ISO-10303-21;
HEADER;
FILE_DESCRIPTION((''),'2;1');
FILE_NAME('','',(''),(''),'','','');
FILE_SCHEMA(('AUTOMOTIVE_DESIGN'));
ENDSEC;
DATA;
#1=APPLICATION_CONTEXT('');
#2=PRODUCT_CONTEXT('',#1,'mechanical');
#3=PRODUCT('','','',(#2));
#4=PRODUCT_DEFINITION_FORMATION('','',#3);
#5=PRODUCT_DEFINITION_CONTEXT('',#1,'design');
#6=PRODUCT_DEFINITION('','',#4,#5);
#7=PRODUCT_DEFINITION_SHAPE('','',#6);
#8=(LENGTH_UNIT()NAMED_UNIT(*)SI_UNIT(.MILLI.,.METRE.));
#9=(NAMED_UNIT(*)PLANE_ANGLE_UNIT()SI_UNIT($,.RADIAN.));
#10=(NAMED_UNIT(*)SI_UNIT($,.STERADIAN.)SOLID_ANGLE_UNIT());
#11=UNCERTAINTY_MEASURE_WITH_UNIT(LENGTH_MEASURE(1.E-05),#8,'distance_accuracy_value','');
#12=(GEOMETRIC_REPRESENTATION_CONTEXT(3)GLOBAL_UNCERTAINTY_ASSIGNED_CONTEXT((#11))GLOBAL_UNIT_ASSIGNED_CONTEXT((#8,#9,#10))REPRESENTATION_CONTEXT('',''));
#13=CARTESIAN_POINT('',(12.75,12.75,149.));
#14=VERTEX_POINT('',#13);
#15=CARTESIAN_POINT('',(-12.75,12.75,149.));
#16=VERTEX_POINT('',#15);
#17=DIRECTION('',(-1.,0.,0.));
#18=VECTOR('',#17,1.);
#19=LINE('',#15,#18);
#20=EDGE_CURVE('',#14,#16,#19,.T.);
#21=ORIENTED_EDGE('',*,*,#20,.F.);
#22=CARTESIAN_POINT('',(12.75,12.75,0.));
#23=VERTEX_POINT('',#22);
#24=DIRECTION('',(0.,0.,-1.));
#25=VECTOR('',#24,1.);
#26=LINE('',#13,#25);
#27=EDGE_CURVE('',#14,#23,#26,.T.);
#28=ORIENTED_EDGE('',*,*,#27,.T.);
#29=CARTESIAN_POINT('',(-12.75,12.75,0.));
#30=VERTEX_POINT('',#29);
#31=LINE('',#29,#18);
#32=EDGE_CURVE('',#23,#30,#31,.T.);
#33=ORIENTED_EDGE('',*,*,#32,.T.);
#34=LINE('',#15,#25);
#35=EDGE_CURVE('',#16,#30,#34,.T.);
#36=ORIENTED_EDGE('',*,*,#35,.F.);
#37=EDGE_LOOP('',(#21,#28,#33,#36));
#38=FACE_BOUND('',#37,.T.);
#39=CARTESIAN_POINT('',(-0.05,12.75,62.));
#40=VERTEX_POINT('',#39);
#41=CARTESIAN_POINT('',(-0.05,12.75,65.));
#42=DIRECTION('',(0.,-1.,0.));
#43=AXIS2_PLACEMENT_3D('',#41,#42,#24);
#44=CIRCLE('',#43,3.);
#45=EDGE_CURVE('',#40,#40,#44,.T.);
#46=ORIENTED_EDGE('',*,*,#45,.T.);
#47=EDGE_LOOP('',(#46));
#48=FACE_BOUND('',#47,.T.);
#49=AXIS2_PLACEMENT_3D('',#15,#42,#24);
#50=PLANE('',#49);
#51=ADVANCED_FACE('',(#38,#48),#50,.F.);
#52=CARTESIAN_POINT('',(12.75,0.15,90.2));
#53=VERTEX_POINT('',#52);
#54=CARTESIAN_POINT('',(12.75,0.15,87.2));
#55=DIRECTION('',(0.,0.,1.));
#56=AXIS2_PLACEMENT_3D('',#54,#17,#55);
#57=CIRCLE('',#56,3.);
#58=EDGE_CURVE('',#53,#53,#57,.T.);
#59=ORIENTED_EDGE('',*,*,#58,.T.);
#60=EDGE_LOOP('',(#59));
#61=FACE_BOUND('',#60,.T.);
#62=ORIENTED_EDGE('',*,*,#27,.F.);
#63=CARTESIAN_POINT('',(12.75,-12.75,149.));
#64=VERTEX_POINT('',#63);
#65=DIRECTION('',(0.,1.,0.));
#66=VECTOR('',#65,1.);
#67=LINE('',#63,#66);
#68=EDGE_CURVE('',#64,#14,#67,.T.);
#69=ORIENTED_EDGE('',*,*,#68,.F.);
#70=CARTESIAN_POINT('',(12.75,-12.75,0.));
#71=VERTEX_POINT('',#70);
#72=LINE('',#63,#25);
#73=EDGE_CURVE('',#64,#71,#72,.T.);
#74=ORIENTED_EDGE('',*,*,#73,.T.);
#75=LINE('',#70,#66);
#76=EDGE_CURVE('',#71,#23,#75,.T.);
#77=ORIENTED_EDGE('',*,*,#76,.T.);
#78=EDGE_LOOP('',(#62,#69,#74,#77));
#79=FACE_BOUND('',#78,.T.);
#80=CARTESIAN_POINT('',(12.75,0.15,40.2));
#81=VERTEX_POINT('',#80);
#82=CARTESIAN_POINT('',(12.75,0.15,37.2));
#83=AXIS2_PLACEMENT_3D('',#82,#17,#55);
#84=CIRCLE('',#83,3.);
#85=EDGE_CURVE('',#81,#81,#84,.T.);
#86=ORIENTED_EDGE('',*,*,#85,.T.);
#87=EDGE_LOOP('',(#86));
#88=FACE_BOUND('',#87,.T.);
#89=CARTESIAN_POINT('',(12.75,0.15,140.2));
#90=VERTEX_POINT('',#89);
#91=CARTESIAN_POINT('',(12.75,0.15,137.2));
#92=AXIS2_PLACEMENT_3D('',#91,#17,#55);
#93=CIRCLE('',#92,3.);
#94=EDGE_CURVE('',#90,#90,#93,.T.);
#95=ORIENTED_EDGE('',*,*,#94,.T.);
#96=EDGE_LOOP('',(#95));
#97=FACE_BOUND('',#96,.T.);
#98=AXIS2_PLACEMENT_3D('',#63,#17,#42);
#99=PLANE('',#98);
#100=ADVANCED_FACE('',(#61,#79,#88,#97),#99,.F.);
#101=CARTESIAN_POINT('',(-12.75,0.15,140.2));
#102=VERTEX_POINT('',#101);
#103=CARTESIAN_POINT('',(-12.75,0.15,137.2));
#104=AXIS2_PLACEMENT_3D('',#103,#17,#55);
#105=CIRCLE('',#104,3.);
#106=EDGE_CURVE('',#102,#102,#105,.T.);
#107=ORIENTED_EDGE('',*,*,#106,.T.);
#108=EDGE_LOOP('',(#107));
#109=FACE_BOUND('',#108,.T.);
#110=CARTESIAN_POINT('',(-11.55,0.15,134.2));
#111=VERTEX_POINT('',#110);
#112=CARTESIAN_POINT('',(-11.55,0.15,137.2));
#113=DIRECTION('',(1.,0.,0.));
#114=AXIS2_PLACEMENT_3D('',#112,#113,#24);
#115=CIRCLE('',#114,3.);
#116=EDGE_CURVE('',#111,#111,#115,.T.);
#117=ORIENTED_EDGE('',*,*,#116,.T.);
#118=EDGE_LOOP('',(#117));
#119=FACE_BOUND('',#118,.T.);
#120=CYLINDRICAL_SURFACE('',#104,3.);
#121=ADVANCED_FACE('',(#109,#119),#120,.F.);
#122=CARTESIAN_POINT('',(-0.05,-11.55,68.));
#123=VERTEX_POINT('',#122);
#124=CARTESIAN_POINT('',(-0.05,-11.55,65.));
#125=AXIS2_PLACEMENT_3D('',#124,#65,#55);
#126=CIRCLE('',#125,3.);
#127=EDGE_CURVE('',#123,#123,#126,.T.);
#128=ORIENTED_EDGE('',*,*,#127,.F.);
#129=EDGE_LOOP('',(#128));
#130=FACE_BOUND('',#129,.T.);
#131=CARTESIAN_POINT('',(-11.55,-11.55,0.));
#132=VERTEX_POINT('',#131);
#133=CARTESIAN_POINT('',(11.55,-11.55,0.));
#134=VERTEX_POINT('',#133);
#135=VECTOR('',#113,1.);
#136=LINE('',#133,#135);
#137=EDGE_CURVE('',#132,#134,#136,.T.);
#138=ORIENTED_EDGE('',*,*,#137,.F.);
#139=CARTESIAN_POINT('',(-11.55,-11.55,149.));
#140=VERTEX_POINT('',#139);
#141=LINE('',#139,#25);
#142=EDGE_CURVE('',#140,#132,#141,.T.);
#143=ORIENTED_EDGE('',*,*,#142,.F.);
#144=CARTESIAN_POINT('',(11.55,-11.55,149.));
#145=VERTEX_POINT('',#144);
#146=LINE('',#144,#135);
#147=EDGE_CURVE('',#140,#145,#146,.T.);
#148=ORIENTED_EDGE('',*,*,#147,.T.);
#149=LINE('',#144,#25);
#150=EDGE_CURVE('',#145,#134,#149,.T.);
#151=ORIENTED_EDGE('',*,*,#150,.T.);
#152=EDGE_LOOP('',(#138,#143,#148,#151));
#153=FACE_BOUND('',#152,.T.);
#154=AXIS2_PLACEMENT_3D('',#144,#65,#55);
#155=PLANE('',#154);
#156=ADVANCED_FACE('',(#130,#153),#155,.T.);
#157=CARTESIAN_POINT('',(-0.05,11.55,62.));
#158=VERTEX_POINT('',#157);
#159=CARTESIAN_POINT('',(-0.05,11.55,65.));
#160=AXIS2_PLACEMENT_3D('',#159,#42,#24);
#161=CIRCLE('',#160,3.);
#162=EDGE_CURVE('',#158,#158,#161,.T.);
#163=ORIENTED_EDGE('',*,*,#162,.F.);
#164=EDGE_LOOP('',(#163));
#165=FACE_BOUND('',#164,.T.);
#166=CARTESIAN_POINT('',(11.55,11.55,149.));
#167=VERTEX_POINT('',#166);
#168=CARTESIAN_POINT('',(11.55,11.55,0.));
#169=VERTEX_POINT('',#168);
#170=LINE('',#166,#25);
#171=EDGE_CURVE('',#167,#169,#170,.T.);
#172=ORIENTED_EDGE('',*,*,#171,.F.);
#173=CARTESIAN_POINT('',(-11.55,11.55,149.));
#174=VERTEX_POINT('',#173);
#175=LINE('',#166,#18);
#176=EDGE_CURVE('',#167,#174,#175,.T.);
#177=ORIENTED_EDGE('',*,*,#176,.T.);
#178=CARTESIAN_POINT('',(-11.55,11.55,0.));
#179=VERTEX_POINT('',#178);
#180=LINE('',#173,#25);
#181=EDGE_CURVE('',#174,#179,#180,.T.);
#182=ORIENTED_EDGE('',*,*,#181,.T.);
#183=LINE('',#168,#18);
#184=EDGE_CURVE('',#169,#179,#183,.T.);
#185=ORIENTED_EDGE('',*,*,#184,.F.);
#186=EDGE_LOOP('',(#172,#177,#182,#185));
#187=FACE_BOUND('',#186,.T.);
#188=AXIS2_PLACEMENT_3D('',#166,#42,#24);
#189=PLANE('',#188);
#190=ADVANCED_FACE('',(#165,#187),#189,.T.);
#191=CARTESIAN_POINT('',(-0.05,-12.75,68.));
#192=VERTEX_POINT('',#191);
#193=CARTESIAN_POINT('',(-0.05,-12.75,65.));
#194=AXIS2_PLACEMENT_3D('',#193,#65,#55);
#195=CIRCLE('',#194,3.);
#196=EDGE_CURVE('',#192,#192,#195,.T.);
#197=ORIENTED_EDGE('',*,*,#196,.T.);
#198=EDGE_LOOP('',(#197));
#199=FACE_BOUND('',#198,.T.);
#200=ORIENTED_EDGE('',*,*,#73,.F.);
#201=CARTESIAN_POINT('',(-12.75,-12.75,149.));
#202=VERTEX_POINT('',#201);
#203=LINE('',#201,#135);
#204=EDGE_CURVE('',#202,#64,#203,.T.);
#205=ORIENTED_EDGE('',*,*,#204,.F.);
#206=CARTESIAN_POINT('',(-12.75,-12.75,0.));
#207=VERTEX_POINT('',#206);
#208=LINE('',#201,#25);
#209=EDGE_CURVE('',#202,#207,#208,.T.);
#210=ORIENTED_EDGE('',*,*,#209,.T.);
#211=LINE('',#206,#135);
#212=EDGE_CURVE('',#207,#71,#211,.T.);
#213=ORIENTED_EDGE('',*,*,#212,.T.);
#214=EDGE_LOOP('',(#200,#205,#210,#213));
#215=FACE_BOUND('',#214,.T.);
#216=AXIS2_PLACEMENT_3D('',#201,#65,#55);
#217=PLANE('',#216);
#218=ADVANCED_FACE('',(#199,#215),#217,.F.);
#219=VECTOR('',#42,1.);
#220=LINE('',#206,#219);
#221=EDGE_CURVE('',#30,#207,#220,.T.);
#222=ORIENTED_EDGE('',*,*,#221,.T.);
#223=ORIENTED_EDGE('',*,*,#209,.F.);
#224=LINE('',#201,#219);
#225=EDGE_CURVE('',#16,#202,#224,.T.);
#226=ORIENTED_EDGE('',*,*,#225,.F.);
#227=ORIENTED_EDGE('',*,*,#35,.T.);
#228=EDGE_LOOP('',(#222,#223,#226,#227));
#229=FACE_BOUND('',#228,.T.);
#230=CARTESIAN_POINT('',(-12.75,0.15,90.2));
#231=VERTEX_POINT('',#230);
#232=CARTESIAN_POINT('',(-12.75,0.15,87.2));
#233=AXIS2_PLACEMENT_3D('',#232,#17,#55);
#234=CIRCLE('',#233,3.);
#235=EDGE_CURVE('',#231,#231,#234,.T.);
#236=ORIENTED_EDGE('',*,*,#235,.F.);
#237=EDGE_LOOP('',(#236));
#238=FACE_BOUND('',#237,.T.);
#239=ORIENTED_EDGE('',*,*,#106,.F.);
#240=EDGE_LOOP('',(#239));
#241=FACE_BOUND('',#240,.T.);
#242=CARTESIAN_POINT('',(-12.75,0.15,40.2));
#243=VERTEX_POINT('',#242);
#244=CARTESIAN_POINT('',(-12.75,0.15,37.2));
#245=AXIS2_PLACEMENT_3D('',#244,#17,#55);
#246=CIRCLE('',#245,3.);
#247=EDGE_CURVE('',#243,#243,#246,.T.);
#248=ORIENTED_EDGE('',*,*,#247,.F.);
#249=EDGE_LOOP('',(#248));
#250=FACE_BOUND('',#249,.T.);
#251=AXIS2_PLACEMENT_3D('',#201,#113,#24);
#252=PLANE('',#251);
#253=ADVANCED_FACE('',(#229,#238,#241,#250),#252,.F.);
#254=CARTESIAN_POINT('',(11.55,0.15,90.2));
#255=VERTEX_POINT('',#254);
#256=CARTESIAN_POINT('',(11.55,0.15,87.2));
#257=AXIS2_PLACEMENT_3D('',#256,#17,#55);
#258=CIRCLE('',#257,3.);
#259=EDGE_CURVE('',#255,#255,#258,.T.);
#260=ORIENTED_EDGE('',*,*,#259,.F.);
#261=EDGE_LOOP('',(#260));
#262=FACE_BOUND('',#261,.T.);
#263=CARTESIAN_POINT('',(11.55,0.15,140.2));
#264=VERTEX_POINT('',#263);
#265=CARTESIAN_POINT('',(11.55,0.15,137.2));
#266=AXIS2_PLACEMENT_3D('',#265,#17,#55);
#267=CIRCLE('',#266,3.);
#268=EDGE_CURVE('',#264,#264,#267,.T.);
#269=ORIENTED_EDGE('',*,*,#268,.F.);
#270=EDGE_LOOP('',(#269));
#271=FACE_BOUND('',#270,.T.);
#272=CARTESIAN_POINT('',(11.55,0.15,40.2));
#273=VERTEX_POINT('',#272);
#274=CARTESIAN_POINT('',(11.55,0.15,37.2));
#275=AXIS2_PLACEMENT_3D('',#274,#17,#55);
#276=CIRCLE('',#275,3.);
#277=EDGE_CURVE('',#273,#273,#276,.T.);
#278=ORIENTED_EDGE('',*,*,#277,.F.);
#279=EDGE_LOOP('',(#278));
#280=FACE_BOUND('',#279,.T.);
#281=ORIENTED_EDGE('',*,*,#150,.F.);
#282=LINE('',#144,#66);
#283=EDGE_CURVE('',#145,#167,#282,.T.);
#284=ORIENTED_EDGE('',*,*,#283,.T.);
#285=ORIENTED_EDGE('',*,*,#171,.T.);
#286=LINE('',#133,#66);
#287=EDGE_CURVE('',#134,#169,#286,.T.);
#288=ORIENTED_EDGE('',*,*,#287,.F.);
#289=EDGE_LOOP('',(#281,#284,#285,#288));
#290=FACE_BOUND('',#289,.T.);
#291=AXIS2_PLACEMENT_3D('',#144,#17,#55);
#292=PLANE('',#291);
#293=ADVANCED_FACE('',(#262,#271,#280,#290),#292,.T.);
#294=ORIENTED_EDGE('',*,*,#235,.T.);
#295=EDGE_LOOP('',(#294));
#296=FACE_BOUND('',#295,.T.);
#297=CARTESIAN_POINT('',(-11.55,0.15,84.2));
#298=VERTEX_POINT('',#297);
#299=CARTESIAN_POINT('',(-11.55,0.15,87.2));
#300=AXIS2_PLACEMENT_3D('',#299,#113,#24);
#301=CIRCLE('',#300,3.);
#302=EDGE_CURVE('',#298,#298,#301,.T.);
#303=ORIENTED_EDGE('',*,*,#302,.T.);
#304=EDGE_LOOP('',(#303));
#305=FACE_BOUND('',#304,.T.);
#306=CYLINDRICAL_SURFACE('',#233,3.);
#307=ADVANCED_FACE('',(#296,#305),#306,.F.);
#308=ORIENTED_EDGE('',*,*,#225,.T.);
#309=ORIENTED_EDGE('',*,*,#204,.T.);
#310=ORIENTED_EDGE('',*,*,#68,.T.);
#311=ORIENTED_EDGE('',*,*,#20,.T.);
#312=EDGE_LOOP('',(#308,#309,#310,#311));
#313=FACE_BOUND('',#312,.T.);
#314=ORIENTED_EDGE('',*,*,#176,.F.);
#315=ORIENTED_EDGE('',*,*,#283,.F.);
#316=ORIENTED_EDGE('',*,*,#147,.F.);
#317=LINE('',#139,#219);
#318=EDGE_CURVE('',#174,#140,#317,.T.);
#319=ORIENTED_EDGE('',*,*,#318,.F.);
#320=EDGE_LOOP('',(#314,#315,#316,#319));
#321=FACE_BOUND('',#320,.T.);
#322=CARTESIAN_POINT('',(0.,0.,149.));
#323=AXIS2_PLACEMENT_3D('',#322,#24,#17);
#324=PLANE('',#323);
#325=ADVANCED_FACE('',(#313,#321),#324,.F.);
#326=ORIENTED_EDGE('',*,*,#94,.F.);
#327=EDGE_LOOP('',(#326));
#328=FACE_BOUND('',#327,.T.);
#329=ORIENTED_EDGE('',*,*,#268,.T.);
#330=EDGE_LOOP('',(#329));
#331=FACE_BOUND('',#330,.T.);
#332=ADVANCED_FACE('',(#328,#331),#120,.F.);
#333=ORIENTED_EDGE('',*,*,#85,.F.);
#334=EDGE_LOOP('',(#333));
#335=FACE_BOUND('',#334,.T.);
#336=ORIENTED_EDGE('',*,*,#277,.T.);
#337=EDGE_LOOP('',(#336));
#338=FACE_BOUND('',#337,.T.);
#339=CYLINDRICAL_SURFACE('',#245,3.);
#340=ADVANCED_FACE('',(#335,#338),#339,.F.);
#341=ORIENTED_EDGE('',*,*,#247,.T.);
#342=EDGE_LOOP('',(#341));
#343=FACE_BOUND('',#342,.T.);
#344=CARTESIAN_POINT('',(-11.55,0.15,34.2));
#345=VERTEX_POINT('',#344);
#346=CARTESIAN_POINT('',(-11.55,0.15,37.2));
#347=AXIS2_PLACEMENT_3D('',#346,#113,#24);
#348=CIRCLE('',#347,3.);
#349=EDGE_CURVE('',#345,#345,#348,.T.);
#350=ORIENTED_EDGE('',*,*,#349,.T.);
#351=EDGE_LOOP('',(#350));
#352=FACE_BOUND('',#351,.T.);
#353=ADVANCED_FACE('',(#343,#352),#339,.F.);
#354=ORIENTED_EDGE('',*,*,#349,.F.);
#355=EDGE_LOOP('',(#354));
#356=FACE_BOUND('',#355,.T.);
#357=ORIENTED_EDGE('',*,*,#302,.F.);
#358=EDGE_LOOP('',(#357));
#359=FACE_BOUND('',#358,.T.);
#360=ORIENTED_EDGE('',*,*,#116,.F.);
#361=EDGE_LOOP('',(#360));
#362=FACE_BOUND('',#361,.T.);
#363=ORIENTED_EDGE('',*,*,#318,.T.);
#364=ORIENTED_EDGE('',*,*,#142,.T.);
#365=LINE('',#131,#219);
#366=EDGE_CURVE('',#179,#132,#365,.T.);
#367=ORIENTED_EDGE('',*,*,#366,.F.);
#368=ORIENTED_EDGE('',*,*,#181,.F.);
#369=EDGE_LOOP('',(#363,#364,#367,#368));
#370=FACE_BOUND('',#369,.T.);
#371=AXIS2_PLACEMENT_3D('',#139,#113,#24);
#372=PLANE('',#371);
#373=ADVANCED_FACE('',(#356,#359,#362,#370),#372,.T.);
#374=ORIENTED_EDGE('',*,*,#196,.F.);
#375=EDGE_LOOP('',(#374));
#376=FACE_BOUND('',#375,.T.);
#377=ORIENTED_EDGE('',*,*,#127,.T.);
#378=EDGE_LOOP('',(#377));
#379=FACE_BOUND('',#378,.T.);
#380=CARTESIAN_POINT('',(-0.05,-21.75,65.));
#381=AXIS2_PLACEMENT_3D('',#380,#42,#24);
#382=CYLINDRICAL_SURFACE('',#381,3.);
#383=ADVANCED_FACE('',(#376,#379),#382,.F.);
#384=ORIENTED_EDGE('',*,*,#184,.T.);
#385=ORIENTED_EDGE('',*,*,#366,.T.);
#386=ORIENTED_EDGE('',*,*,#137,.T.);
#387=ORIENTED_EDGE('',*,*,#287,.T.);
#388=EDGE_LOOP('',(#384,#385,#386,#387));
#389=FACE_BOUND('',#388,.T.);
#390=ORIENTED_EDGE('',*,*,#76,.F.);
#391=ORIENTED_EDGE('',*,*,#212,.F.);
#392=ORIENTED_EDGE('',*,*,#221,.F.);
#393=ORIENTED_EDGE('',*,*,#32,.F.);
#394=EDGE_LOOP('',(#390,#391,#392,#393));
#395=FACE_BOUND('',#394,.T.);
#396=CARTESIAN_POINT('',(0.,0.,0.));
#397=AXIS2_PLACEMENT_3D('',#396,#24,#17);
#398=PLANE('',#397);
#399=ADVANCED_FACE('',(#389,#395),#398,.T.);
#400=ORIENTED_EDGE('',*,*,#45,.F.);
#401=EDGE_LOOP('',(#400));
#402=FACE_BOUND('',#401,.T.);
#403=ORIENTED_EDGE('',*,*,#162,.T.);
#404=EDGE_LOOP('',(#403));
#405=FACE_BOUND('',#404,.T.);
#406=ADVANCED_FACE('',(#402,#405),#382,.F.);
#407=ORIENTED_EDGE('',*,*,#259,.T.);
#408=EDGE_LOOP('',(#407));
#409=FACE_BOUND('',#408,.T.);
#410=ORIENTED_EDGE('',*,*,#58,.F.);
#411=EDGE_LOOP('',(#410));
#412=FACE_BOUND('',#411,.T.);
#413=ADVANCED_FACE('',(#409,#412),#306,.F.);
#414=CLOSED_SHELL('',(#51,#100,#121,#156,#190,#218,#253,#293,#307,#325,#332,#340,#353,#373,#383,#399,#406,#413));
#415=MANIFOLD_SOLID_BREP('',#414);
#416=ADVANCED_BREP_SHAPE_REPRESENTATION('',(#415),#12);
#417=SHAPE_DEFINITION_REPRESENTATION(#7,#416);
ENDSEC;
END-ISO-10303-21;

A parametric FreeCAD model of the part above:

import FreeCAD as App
import Part
import Sketcher

V = App.Vector
Q = App.Units.Quantity

doc = App.newDocument("Part")
params = doc.addObject("Spreadsheet::Sheet", "Params")
for row, (alias, value) in enumerate([
    ("sketch1_width", "25.5 mm"),
    ("sketch1_width2", "23.1 mm"),
    ("pad1_length", "149 mm"),
    ("sketch2_diameter", "6 mm"),
    ("hole_diameter", "6 mm"),
    ("sketch3_diameter", "6 mm"),
    ("hole2_diameter", "6 mm"),
], start=1):
    params.set(f"A{row}", alias)
    params.set(f"B{row}", "=" + value)
    params.setAlias(f"B{row}", alias)

body = doc.addObject("PartDesign::Body", "Body")

# Sketch on XY plane
sketch1 = body.newObject("Sketcher::SketchObject", "Sketch")
sketch1.AttachmentSupport = (doc.getObject("XY_Plane"), [""])
sketch1.MapMode = "FlatFace"
sketch1.addGeometry([
    Part.LineSegment(V(-12.75, 12.75, 0), V(-12.75, -12.75, 0)),  # 0
    Part.LineSegment(V(-12.75, -12.75, 0), V(12.75, -12.75, 0)),  # 1
    Part.LineSegment(V(12.75, -12.75, 0), V(12.75, 12.75, 0)),  # 2
    Part.LineSegment(V(12.75, 12.75, 0), V(-12.75, 12.75, 0)),  # 3
    Part.LineSegment(V(11.55, -11.55, 0), V(-11.55, -11.55, 0)),  # 4
    Part.LineSegment(V(-11.55, -11.55, 0), V(-11.55, 11.55, 0)),  # 5
    Part.LineSegment(V(-11.55, 11.55, 0), V(11.55, 11.55, 0)),  # 6
    Part.LineSegment(V(11.55, 11.55, 0), V(11.55, -11.55, 0)),  # 7
], False)
sketch1.addConstraint([
    Sketcher.Constraint("Coincident", 0, 2, 1, 1),
    Sketcher.Constraint("Coincident", 1, 2, 2, 1),
    Sketcher.Constraint("Coincident", 2, 2, 3, 1),
    Sketcher.Constraint("Coincident", 3, 2, 0, 1),
    Sketcher.Constraint("Coincident", 4, 2, 5, 1),
    Sketcher.Constraint("Coincident", 5, 2, 6, 1),
    Sketcher.Constraint("Coincident", 6, 2, 7, 1),
    Sketcher.Constraint("Coincident", 7, 2, 4, 1),
    Sketcher.Constraint("Vertical", 0),
    Sketcher.Constraint("Horizontal", 1),
    Sketcher.Constraint("Vertical", 2),
    Sketcher.Constraint("Horizontal", 3),
    Sketcher.Constraint("Horizontal", 4),
    Sketcher.Constraint("Vertical", 5),
    Sketcher.Constraint("Horizontal", 6),
    Sketcher.Constraint("Vertical", 7),
    Sketcher.Constraint("Symmetric", 0, 2, 2, 2, -1, 1),
    Sketcher.Constraint("Symmetric", 4, 2, 6, 2, -1, 1),
    Sketcher.Constraint("Equal", 3, 0),
    Sketcher.Constraint("Equal", 6, 5),
    Sketcher.Constraint("DistanceX", 1, 1, 1, 2, Q("25.5 mm")),
    Sketcher.Constraint("DistanceX", 4, 2, 4, 1, Q("23.1 mm")),
])
sketch1.setExpression("Constraints[20]", "Params.sketch1_width")
sketch1.setExpression("Constraints[21]", "Params.sketch1_width2")
pad1 = body.newObject("PartDesign::Pad", "Pad")
pad1.Profile = sketch1
pad1.setExpression("Length", "Params.pad1_length")

# Sketch on XZ plane
sketch2 = body.newObject("Sketcher::SketchObject", "Sketch001")
sketch2.AttachmentSupport = (doc.getObject("XZ_Plane"), [""])
sketch2.MapMode = "FlatFace"
sketch2.AttachmentOffset = App.Placement(V(0, 0, 21.75), App.Rotation())
sketch2.addGeometry(Part.Circle(V(-0.05, 65, 0), V(0, 0, 1), 3), False)
sketch2.addConstraint([
    Sketcher.Constraint("Diameter", 0, Q("6 mm")),
    Sketcher.Constraint("DistanceY", -1, 1, 0, 3, Q("65 mm")),
    Sketcher.Constraint("DistanceX", 0, 3, -1, 1, Q("0.05 mm")),
])
sketch2.setExpression("Constraints[0]", "Params.sketch2_diameter")
doc.recompute()
hole = body.newObject("PartDesign::Hole", "Hole")
hole.Profile = sketch2
hole.ThreadType = "None"
hole.setExpression("Diameter", "Params.hole_diameter")
hole.DepthType = "ThroughAll"

# Sketch on YZ plane
sketch3 = body.newObject("Sketcher::SketchObject", "Sketch002")
sketch3.AttachmentSupport = (doc.getObject("YZ_Plane"), [""])
sketch3.MapMode = "FlatFace"
sketch3.AttachmentOffset = App.Placement(V(0, 0, -12.75), App.Rotation())
sketch3.addGeometry([
    Part.Circle(V(0.15, 37.2, 0), V(0, 0, 1), 3),
    Part.Circle(V(0.15, 87.2, 0), V(0, 0, 1), 3),
    Part.Circle(V(0.15, 137.2, 0), V(0, 0, 1), 3),
], False)
sketch3.addConstraint([
    Sketcher.Constraint("Equal", 0, 1),
    Sketcher.Constraint("Equal", 1, 2),
    Sketcher.Constraint("Vertical", 0, 3, 1, 3),
    Sketcher.Constraint("Vertical", 1, 3, 2, 3),
    Sketcher.Constraint("Diameter", 0, Q("6 mm")),
    Sketcher.Constraint("DistanceY", 0, 3, 1, 3, Q("50 mm")),
    Sketcher.Constraint("DistanceY", 1, 3, 2, 3, Q("50 mm")),
    Sketcher.Constraint("DistanceY", -1, 1, 0, 3, Q("37.2 mm")),
    Sketcher.Constraint("DistanceX", -1, 1, 0, 3, Q("0.15 mm")),
])
sketch3.setExpression("Constraints[4]", "Params.sketch3_diameter")
doc.recompute()
hole2 = body.newObject("PartDesign::Hole", "Hole001")
hole2.Profile = sketch3
hole2.ThreadType = "None"
hole2.setExpression("Diameter", "Params.hole2_diameter")
hole2.DepthType = "ThroughAll"
hole2.Reversed = True

doc.recompute()
